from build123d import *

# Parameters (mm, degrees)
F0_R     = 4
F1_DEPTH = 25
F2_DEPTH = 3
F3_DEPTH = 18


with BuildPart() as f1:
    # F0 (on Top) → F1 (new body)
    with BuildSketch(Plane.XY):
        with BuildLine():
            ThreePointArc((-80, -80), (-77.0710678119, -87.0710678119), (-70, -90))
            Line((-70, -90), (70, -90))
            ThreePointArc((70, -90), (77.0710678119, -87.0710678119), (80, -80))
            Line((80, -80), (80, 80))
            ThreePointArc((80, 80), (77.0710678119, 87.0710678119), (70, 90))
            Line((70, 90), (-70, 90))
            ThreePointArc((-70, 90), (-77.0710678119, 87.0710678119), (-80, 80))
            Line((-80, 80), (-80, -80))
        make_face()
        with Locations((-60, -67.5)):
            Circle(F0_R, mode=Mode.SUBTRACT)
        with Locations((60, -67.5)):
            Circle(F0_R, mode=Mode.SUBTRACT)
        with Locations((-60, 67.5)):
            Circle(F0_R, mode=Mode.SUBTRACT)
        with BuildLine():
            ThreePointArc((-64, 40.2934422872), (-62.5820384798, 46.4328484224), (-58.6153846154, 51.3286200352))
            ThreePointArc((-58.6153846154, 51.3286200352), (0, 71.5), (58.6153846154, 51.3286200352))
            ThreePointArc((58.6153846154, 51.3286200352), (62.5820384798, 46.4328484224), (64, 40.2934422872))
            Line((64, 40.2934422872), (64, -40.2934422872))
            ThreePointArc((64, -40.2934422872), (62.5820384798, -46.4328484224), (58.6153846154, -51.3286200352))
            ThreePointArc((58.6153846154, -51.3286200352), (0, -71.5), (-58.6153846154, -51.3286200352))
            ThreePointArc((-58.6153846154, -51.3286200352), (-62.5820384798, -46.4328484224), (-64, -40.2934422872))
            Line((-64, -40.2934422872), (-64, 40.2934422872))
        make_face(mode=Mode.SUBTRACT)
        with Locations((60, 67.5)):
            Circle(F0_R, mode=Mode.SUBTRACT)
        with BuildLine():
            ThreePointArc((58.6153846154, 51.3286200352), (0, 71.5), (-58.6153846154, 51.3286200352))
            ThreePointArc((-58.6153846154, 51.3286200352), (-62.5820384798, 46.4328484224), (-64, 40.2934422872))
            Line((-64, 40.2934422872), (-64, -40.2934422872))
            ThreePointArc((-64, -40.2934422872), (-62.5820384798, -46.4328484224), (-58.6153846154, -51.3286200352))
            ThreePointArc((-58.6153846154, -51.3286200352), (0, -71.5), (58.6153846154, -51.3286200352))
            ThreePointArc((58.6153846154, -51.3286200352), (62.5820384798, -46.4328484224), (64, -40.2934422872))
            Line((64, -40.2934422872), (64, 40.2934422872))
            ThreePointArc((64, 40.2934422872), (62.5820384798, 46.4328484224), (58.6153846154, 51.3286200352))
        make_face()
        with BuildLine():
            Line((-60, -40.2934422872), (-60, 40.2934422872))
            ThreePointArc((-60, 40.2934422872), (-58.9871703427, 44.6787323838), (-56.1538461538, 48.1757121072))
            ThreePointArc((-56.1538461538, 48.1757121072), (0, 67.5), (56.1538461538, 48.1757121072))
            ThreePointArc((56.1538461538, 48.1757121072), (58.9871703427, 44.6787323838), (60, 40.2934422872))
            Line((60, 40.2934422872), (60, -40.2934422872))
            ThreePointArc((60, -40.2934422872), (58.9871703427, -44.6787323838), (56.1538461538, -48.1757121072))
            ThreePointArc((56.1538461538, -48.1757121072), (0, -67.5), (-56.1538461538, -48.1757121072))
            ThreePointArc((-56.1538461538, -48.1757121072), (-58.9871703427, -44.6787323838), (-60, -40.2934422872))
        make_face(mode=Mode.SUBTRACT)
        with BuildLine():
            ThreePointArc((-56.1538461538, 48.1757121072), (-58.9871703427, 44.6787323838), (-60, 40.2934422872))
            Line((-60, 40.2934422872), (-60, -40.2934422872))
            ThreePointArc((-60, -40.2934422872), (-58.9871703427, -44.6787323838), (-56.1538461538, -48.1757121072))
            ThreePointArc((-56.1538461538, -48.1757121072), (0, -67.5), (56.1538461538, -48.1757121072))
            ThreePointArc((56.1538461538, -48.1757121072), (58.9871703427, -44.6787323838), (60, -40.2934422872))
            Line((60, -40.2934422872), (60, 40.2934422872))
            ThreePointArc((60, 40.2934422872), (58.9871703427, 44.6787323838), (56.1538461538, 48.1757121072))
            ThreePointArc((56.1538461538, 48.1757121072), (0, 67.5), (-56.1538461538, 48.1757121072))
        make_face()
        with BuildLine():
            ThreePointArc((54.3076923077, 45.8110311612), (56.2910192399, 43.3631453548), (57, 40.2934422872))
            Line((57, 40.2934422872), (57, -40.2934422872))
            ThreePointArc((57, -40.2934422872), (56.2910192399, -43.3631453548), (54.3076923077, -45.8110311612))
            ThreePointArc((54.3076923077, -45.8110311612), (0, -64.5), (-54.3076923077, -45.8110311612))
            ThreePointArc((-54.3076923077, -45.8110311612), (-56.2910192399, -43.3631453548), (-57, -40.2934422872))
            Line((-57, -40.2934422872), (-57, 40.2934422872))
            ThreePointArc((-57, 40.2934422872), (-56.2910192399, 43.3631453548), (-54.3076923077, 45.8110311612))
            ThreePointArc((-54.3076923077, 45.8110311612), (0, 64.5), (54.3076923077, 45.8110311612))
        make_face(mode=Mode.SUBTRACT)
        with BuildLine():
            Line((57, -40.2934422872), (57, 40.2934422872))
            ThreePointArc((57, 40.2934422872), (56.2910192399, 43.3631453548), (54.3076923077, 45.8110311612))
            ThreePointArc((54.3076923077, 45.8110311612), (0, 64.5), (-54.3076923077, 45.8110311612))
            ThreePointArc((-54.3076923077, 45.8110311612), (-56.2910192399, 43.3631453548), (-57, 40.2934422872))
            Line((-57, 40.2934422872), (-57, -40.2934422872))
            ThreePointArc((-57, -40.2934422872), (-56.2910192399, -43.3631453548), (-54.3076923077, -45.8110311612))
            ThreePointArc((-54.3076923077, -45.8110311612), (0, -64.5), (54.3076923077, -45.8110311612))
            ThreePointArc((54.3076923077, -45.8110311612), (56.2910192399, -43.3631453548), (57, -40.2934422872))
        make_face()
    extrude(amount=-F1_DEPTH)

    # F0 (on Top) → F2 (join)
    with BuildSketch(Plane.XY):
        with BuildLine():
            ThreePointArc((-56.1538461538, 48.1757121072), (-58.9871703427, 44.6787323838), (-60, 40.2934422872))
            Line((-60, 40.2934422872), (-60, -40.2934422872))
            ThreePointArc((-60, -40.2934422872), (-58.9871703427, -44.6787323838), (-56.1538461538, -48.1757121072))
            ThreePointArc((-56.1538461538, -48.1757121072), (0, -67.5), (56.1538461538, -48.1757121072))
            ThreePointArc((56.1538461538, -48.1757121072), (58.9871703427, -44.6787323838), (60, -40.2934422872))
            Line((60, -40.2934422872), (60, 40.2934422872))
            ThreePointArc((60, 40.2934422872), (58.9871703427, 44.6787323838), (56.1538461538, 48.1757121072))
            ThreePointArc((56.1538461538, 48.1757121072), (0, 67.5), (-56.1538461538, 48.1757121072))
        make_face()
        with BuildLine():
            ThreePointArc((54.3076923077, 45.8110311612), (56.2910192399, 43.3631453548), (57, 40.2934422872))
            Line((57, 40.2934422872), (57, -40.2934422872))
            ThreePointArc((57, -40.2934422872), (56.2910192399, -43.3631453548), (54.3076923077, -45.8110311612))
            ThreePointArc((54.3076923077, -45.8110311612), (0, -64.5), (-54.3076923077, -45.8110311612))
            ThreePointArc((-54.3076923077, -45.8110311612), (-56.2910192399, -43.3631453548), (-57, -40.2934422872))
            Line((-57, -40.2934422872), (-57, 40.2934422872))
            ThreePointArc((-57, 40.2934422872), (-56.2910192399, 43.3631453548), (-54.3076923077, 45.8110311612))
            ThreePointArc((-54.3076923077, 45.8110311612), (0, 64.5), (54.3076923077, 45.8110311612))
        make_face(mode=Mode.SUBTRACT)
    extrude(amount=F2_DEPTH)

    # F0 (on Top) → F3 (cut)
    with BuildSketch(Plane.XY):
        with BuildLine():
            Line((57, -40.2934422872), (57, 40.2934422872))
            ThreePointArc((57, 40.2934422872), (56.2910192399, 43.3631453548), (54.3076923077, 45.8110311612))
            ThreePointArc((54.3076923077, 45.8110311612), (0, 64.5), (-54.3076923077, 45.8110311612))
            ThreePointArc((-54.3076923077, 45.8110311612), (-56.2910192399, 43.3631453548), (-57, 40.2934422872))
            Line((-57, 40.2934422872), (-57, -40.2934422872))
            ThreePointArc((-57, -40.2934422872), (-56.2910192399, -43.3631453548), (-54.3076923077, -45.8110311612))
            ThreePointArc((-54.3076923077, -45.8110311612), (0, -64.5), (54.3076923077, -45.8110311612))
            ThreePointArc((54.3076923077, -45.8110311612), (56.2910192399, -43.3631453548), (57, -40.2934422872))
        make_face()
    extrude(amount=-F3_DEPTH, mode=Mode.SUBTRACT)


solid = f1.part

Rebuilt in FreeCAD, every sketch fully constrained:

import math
import FreeCAD as App
import Part
import Sketcher

V = App.Vector

doc = App.newDocument("Part")
params = doc.addObject("Spreadsheet::Sheet", "Params")
for row, (alias, value) in enumerate([
    ("sketch1_diameter", "8 mm"),
    ("sketch1_radius", "10 mm"),
    ("sketch1_width", "140 mm"),
    ("sketch1_height", "160 mm"),
    ("pad1_length", "25 mm"),
    ("sketch2_radius", "10 mm"),
    ("sketch2_radius2", "7 mm"),
    ("sketch2_radius3", "91.25 mm"),
    ("pad2_length", "3 mm"),
    ("sketch3_radius", "7 mm"),
    ("sketch3_radius2", "88.25 mm"),
    ("pocket1_length", "18 mm"),
], start=1):
    params.set(f"A{row}", alias)
    params.set(f"B{row}", "=" + value)
    params.setAlias(f"B{row}", alias)

body = doc.addObject("PartDesign::Body", "Body")

# Sketch on XY plane
sketch1 = doc.addObject("Sketcher::SketchObject", "Sketch")
body.addObject(sketch1)
sketch1.AttachmentSupport = (doc.XY_Plane, [""])
sketch1.MapMode = "FlatFace"
sketch1.addGeometry([
    Part.ArcOfCircle(Part.Circle(V(-70, -80, 0), V(0, 0, 1), 10), math.radians(180), math.radians(270)),  # 0
    Part.LineSegment(V(-70, -90, 0), V(70, -90, 0)),  # 1
    Part.ArcOfCircle(Part.Circle(V(70, -80, 0), V(0, 0, 1), 10), math.radians(-90), math.radians(0)),  # 2
    Part.LineSegment(V(80, -80, 0), V(80, 80, 0)),  # 3
    Part.ArcOfCircle(Part.Circle(V(70, 80, 0), V(0, 0, 1), 10), math.radians(0), math.radians(90)),  # 4
    Part.LineSegment(V(70, 90, 0), V(-70, 90, 0)),  # 5
    Part.ArcOfCircle(Part.Circle(V(-70, 80, 0), V(0, 0, 1), 10), math.radians(90), math.radians(180)),  # 6
    Part.LineSegment(V(-80, 80, 0), V(-80, -80, 0)),  # 7
    Part.Circle(V(-60, -67.5, 0), V(0, 0, 1), 4),  # 8
    Part.Circle(V(60, -67.5, 0), V(0, 0, 1), 4),  # 9
    Part.Circle(V(-60, 67.5, 0), V(0, 0, 1), 4),  # 10
    Part.Circle(V(60, 67.5, 0), V(0, 0, 1), 4),  # 11
], False)
sketch1.addConstraint([
    Sketcher.Constraint("Tangent", 0, 2, 1, 1),
    Sketcher.Constraint("Tangent", 1, 2, 2, 1),
    Sketcher.Constraint("Tangent", 2, 2, 3, 1),
    Sketcher.Constraint("Tangent", 3, 2, 4, 1),
    Sketcher.Constraint("Tangent", 4, 2, 5, 1),
    Sketcher.Constraint("Tangent", 5, 2, 6, 1),
    Sketcher.Constraint("Tangent", 6, 2, 7, 1),
    Sketcher.Constraint("Tangent", 7, 2, 0, 1),
    Sketcher.Constraint("Horizontal", 1),
    Sketcher.Constraint("Vertical", 3),
    Sketcher.Constraint("Horizontal", 5),
    Sketcher.Constraint("Vertical", 7),
    Sketcher.Constraint("Equal", 0, 2),
    Sketcher.Constraint("Equal", 2, 4),
    Sketcher.Constraint("Equal", 4, 6),
    Sketcher.Constraint("Equal", 8, 9),
    Sketcher.Constraint("Equal", 9, 10),
    Sketcher.Constraint("Equal", 10, 11),
    Sketcher.Constraint("Symmetric", 0, 3, 4, 3, -1, 1),
    Sketcher.Constraint("Symmetric", 9, 3, 10, 3, -1, 1),
    Sketcher.Constraint("Symmetric", 8, 3, 11, 3, -1, 1),
    Sketcher.Constraint("Symmetric", 8, 3, 9, 3, -2),
    Sketcher.Constraint("Diameter", 8, 8.0),
    Sketcher.Constraint("Radius", 0, 10.0),
    Sketcher.Constraint("DistanceX", 1, 1, 1, 2, 140.0),
    Sketcher.Constraint("DistanceY", 3, 1, 3, 2, 160.0),
    Sketcher.Constraint("DistanceX", 8, 3, -1, 1, 60.0),
    Sketcher.Constraint("DistanceY", 8, 3, 10, 3, 135.0),
])
sketch1.setExpression("Constraints[22]", "Params.sketch1_diameter")
sketch1.setExpression("Constraints[23]", "Params.sketch1_radius")
sketch1.setExpression("Constraints[24]", "Params.sketch1_width")
sketch1.setExpression("Constraints[25]", "Params.sketch1_height")
pad1 = doc.addObject("PartDesign::Pad", "Pad")
body.addObject(pad1)
pad1.Profile = sketch1
pad1.setExpression("Length", "Params.pad1_length")
pad1.Reversed = True

# Sketch on XY plane
sketch2 = doc.addObject("Sketcher::SketchObject", "Sketch001")
body.addObject(sketch2)
sketch2.AttachmentSupport = (doc.XY_Plane, [""])
sketch2.MapMode = "FlatFace"
sketch2.addGeometry([
    Part.ArcOfCircle(Part.Circle(V(-50, 40, 0), V(0, 0, 1), 10), math.radians(128), math.radians(180)),  # 0
    Part.LineSegment(V(-60, 40, 0), V(-60, -40, 0)),  # 1
    Part.ArcOfCircle(Part.Circle(V(-50, -40, 0), V(0, 0, 1), 10), math.radians(180), math.radians(232)),  # 2
    Part.ArcOfCircle(Part.Circle(V(0, 24, 0), V(0, 0, 1), 91), math.radians(-128), math.radians(-52)),  # 3
    Part.ArcOfCircle(Part.Circle(V(50, -40, 0), V(0, 0, 1), 10), math.radians(-52), math.radians(0)),  # 4
    Part.LineSegment(V(60, -40, 0), V(60, 40, 0)),  # 5
    Part.ArcOfCircle(Part.Circle(V(50, 40, 0), V(0, 0, 1), 10), math.radians(0), math.radians(52)),  # 6
    Part.ArcOfCircle(Part.Circle(V(0, -24, 0), V(0, 0, 1), 91), math.radians(52), math.radians(128)),  # 7
    Part.ArcOfCircle(Part.Circle(V(0, -24, 0), V(0, 0, 1), 88), math.radians(52), math.radians(128)),  # 8
    Part.ArcOfCircle(Part.Circle(V(50, 40, 0), V(0, 0, 1), 7), math.radians(0), math.radians(52)),  # 9
    Part.LineSegment(V(57, 40, 0), V(57, -40, 0)),  # 10
    Part.ArcOfCircle(Part.Circle(V(50, -40, 0), V(0, 0, 1), 7), math.radians(-52), math.radians(0)),  # 11
    Part.ArcOfCircle(Part.Circle(V(0, 24, 0), V(0, 0, 1), 88), math.radians(-128), math.radians(-52)),  # 12
    Part.ArcOfCircle(Part.Circle(V(-50, -40, 0), V(0, 0, 1), 7), math.radians(180), math.radians(232)),  # 13
    Part.LineSegment(V(-57, -40, 0), V(-57, 40, 0)),  # 14
    Part.ArcOfCircle(Part.Circle(V(-50, 40, 0), V(0, 0, 1), 7), math.radians(128), math.radians(180)),  # 15
], False)
sketch2.addConstraint([
    Sketcher.Constraint("Tangent", 0, 2, 1, 1),
    Sketcher.Constraint("Tangent", 1, 2, 2, 1),
    Sketcher.Constraint("Tangent", 2, 2, 3, 1),
    Sketcher.Constraint("Tangent", 3, 2, 4, 1),
    Sketcher.Constraint("Tangent", 4, 2, 5, 1),
    Sketcher.Constraint("Tangent", 5, 2, 6, 1),
    Sketcher.Constraint("Tangent", 6, 2, 7, 1),
    Sketcher.Constraint("Tangent", 7, 2, 0, 1),
    Sketcher.Constraint("Tangent", 8, 1, 9, 2),
    Sketcher.Constraint("Tangent", 9, 1, 10, 1),
    Sketcher.Constraint("Tangent", 10, 2, 11, 2),
    Sketcher.Constraint("Tangent", 11, 1, 12, 2),
    Sketcher.Constraint("Tangent", 12, 1, 13, 2),
    Sketcher.Constraint("Tangent", 13, 1, 14, 1),
    Sketcher.Constraint("Tangent", 14, 2, 15, 2),
    Sketcher.Constraint("Tangent", 15, 1, 8, 2),
    Sketcher.Constraint("Vertical", 1),
    Sketcher.Constraint("Vertical", 5),
    Sketcher.Constraint("Vertical", 10),
    Sketcher.Constraint("Vertical", 14),
    Sketcher.Constraint("Coincident", 8, 3, 7, 3),
    Sketcher.Constraint("Coincident", 9, 3, 6, 3),
    Sketcher.Constraint("Coincident", 11, 3, 4, 3),
    Sketcher.Constraint("Coincident", 12, 3, 3, 3),
    Sketcher.Constraint("Coincident", 13, 3, 2, 3),
    Sketcher.Constraint("Equal", 0, 2),
    Sketcher.Constraint("Equal", 2, 4),
    Sketcher.Constraint("Equal", 4, 6),
    Sketcher.Constraint("Equal", 3, 7),
    Sketcher.Constraint("Equal", 13, 15),
    Sketcher.Constraint("Symmetric", 0, 3, 4, 3, -1, 1),
    Sketcher.Constraint("Symmetric", 3, 3, 7, 3, -1),
    Sketcher.Constraint("Radius", 0, 10.0),
    Sketcher.Constraint("Radius", 9, 7.0),
    Sketcher.Constraint("Radius", 3, 91.25),
    Sketcher.Constraint("DistanceX", 0, 3, -1, 1, 50.0),
    Sketcher.Constraint("DistanceY", 7, 3, 3, 3, 47.5),
])
sketch2.setExpression("Constraints[32]", "Params.sketch2_radius")
sketch2.setExpression("Constraints[33]", "Params.sketch2_radius2")
sketch2.setExpression("Constraints[34]", "Params.sketch2_radius3")
pad2 = doc.addObject("PartDesign::Pad", "Pad001")
body.addObject(pad2)
pad2.Profile = sketch2
pad2.setExpression("Length", "Params.pad2_length")

# Sketch on XY plane
sketch3 = doc.addObject("Sketcher::SketchObject", "Sketch002")
body.addObject(sketch3)
sketch3.AttachmentSupport = (doc.XY_Plane, [""])
sketch3.MapMode = "FlatFace"
sketch3.addGeometry([
    Part.LineSegment(V(57, -40, 0), V(57, 40, 0)),  # 0
    Part.ArcOfCircle(Part.Circle(V(50, 40, 0), V(0, 0, 1), 7), math.radians(0), math.radians(52)),  # 1
    Part.ArcOfCircle(Part.Circle(V(0, -24, 0), V(0, 0, 1), 88), math.radians(52), math.radians(128)),  # 2
    Part.ArcOfCircle(Part.Circle(V(-50, 40, 0), V(0, 0, 1), 7), math.radians(128), math.radians(180)),  # 3
    Part.LineSegment(V(-57, 40, 0), V(-57, -40, 0)),  # 4
    Part.ArcOfCircle(Part.Circle(V(-50, -40, 0), V(0, 0, 1), 7), math.radians(180), math.radians(232)),  # 5
    Part.ArcOfCircle(Part.Circle(V(0, 24, 0), V(0, 0, 1), 88), math.radians(-128), math.radians(-52)),  # 6
    Part.ArcOfCircle(Part.Circle(V(50, -40, 0), V(0, 0, 1), 7), math.radians(-52), math.radians(0)),  # 7
], False)
sketch3.addConstraint([
    Sketcher.Constraint("Tangent", 0, 2, 1, 1),
    Sketcher.Constraint("Tangent", 1, 2, 2, 1),
    Sketcher.Constraint("Tangent", 2, 2, 3, 1),
    Sketcher.Constraint("Tangent", 3, 2, 4, 1),
    Sketcher.Constraint("Tangent", 4, 2, 5, 1),
    Sketcher.Constraint("Tangent", 5, 2, 6, 1),
    Sketcher.Constraint("Tangent", 6, 2, 7, 1),
    Sketcher.Constraint("Tangent", 7, 2, 0, 1),
    Sketcher.Constraint("Vertical", 0),
    Sketcher.Constraint("Vertical", 4),
    Sketcher.Constraint("Equal", 1, 3),
    Sketcher.Constraint("Equal", 3, 5),
    Sketcher.Constraint("Equal", 2, 6),
    Sketcher.Constraint("Equal", 5, 7),
    Sketcher.Constraint("Symmetric", 1, 3, 5, 3, -1, 1),
    Sketcher.Constraint("Symmetric", 2, 3, 6, 3, -1),
    Sketcher.Constraint("Radius", 1, 7.0),
    Sketcher.Constraint("Radius", 2, 88.25),
    Sketcher.Constraint("DistanceX", -1, 1, 1, 3, 50.0),
    Sketcher.Constraint("DistanceY", 2, 3, 6, 3, 47.5),
])
sketch3.setExpression("Constraints[16]", "Params.sketch3_radius")
sketch3.setExpression("Constraints[17]", "Params.sketch3_radius2")
pocket1 = doc.addObject("PartDesign::Pocket", "Pocket")
body.addObject(pocket1)
pocket1.Profile = sketch3
pocket1.setExpression("Length", "Params.pocket1_length")

doc.recompute()
